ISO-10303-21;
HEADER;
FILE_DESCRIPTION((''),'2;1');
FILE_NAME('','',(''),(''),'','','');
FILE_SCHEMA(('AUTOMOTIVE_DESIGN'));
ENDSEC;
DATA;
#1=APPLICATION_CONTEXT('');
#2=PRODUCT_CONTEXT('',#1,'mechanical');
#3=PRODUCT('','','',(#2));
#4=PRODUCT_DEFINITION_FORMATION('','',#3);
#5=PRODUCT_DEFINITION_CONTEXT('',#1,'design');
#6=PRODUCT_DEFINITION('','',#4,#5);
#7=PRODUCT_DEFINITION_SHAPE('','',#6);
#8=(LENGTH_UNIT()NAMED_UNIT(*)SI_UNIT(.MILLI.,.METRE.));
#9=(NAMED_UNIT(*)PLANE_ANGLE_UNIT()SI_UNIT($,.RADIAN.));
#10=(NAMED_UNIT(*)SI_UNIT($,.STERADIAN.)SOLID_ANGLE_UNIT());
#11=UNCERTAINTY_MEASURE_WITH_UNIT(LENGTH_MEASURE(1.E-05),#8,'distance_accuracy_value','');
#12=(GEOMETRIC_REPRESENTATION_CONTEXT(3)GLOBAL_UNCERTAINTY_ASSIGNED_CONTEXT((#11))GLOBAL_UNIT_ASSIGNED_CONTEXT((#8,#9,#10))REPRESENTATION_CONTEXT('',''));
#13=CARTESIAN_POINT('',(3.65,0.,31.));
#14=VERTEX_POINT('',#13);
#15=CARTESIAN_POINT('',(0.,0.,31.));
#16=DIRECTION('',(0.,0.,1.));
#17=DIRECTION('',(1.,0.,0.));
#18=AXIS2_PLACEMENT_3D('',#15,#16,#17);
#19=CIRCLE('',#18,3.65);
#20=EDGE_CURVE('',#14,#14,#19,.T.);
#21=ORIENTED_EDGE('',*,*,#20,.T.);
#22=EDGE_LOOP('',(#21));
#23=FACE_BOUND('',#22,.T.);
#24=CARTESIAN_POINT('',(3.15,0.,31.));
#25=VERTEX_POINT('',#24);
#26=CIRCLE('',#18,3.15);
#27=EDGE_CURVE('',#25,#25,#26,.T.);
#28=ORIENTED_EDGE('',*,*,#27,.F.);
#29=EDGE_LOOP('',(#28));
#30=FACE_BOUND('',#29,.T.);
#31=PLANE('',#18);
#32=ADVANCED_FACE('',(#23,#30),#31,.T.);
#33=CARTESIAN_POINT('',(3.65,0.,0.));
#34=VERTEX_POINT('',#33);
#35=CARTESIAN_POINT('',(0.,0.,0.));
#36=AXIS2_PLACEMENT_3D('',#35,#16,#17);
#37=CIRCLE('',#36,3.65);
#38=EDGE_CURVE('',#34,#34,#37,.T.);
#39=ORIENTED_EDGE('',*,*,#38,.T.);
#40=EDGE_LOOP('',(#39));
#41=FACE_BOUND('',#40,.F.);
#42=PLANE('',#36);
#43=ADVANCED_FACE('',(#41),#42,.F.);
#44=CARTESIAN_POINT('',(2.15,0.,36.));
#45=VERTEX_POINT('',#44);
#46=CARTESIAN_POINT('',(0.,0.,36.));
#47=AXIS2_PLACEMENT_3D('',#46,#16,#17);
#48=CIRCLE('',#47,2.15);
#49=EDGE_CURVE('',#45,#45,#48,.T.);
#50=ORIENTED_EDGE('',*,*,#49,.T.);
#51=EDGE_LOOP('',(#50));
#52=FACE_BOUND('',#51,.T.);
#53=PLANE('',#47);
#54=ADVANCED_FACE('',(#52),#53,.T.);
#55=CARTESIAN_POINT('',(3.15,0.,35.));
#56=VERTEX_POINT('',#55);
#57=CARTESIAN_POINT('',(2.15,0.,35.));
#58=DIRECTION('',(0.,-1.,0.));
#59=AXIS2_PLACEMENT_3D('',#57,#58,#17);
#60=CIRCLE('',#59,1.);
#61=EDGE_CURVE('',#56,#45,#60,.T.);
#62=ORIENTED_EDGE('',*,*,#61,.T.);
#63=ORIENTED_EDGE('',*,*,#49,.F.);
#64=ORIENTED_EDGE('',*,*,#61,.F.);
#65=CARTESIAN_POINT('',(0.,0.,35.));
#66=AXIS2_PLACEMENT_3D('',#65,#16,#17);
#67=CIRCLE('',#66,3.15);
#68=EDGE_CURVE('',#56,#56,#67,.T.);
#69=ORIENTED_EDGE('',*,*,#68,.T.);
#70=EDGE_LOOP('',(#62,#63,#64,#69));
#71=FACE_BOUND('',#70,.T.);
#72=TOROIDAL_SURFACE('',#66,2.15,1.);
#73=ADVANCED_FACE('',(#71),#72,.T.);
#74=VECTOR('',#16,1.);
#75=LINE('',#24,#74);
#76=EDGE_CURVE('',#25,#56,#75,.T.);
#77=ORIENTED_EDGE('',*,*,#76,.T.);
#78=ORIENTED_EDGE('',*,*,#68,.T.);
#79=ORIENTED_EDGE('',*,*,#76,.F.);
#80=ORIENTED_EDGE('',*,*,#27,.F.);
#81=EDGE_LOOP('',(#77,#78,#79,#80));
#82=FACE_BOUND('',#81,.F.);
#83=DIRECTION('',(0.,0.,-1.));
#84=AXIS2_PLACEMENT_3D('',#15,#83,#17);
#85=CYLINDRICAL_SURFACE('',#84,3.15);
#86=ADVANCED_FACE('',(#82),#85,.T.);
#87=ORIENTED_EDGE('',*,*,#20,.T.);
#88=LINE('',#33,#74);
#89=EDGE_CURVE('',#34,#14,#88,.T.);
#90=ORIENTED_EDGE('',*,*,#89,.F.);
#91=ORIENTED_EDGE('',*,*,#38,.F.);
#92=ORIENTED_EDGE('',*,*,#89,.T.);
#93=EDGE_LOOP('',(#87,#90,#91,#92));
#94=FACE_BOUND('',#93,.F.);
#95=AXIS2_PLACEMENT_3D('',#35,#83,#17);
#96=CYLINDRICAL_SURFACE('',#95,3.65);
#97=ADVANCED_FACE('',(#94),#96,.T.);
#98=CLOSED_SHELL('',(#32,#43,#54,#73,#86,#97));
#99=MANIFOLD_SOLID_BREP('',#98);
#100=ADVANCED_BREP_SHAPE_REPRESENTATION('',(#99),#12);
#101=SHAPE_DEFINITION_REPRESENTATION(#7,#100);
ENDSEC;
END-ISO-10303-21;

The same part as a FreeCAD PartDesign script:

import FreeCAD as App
import Part
import Sketcher
from FreeCAD import Vector


def edges_at(feature, points):
    """Names of the edges that pass closest to the given points."""
    edges = feature.Shape.Edges
    near = lambda p: min(range(len(edges)), key=lambda i: edges[i].distToShape(Part.Vertex(*p))[0])
    return sorted({f"Edge{near(p) + 1}" for p in points})

doc = App.newDocument("Part")
body = doc.addObject("PartDesign::Body", "Body")

# Sketch on XY plane
sketch1 = body.newObject("Sketcher::SketchObject", "Sketch")
sketch1.AttachmentSupport = (doc.getObject("XY_Plane"), [""])
sketch1.MapMode = "FlatFace"
sketch1.addGeometry(Part.Circle(Vector(0, 0, 0), Vector(0, 0, 1), 3.65), False)
sketch1.addConstraint([
    Sketcher.Constraint("Coincident", 0, 3, -1, 1),
    Sketcher.Constraint("Diameter", 0, 7.3),
])
pad1 = body.newObject("PartDesign::Pad", "Pad")
pad1.Profile = sketch1
pad1.Length = 31

# Sketch on XY plane
sketch2 = body.newObject("Sketcher::SketchObject", "Sketch001")
sketch2.AttachmentSupport = (doc.getObject("XY_Plane"), [""])
sketch2.MapMode = "FlatFace"
sketch2.AttachmentOffset = App.Placement(Vector(0, 0, 31), App.Rotation())
sketch2.addGeometry(Part.Circle(Vector(0, 0, 0), Vector(0, 0, 1), 3.15), False)
sketch2.addConstraint([
    Sketcher.Constraint("Coincident", 0, 3, -1, 1),
    Sketcher.Constraint("Diameter", 0, 6.3),
])
pad2 = body.newObject("PartDesign::Pad", "Pad001")
pad2.Profile = sketch2
pad2.Length = 5
doc.recompute()

fillet = body.newObject("PartDesign::Fillet", "Fillet")
fillet.Base = (pad2, edges_at(pad2, [(-3.15, 0, 36)]))
fillet.Radius = 1

doc.recompute()
